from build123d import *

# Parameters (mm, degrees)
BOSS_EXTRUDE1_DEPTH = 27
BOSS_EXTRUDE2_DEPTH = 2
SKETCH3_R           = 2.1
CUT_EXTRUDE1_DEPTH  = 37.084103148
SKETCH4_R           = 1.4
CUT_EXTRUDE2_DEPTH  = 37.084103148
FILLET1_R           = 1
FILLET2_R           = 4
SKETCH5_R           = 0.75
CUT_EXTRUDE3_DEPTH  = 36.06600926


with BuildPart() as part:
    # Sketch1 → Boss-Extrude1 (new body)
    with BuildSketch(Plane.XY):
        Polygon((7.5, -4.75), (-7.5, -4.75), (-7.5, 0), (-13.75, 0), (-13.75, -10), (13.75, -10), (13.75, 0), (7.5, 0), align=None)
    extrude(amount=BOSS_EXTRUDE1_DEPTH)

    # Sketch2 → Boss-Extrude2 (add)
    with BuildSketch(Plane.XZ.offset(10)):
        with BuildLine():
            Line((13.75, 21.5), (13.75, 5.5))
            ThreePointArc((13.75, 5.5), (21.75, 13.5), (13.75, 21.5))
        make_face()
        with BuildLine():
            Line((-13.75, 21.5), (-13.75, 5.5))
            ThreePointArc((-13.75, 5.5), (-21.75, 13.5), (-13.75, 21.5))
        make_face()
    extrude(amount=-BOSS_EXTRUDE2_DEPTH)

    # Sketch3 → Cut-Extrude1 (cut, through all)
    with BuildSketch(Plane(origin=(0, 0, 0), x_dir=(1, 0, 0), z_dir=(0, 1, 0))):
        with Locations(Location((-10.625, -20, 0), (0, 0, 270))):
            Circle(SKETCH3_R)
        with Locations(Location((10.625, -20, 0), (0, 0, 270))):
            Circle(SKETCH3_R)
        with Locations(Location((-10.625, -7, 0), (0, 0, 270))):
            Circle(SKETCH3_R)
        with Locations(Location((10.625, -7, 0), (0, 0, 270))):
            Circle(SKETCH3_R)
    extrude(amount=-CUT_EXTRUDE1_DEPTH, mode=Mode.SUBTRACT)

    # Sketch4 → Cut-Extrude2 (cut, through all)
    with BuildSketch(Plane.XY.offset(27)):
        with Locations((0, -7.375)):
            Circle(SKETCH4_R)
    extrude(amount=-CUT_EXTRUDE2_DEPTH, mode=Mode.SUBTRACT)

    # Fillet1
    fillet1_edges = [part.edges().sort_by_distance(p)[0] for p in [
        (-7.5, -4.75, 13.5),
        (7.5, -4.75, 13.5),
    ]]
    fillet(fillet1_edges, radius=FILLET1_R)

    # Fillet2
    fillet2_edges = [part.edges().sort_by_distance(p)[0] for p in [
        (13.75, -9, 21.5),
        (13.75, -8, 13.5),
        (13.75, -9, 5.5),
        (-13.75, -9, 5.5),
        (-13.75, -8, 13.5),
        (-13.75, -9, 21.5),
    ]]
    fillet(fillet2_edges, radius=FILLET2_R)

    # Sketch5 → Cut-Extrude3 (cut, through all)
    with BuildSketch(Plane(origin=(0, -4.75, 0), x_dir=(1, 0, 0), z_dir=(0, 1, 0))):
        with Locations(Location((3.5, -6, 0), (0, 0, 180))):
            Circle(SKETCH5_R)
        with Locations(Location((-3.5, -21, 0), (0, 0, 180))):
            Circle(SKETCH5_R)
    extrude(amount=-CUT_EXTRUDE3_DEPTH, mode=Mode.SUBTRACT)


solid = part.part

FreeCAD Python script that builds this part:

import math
import FreeCAD as App
import Part
import Sketcher
from FreeCAD import Vector
Q = App.Units.Quantity


def edges_at(feature, points):
    """Names of the edges that pass closest to the given points."""
    edges = feature.Shape.Edges
    near = lambda p: min(range(len(edges)), key=lambda i: edges[i].distToShape(Part.Vertex(*p))[0])
    return sorted({f"Edge{near(p) + 1}" for p in points})

doc = App.newDocument("Part")
body = doc.addObject("PartDesign::Body", "Body")

# Sketch on XY plane
sketch1 = body.newObject("Sketcher::SketchObject", "Sketch")
sketch1.AttachmentSupport = (doc.getObject("XY_Plane"), [""])
sketch1.MapMode = "FlatFace"
sketch1.addGeometry([
    Part.LineSegment(Vector(7.5, -4.75, 0), Vector(-7.5, -4.75, 0)),  # 0
    Part.LineSegment(Vector(-7.5, -4.75, 0), Vector(-7.5, 0, 0)),  # 1
    Part.LineSegment(Vector(-7.5, 0, 0), Vector(-13.75, 0, 0)),  # 2
    Part.LineSegment(Vector(-13.75, 0, 0), Vector(-13.75, -10, 0)),  # 3
    Part.LineSegment(Vector(-13.75, -10, 0), Vector(13.75, -10, 0)),  # 4
    Part.LineSegment(Vector(13.75, -10, 0), Vector(13.75, 0, 0)),  # 5
    Part.LineSegment(Vector(13.75, 0, 0), Vector(7.5, 0, 0)),  # 6
    Part.LineSegment(Vector(7.5, 0, 0), Vector(7.5, -4.75, 0)),  # 7
], False)
sketch1.addConstraint([
    Sketcher.Constraint("Coincident", 0, 2, 1, 1),
    Sketcher.Constraint("Coincident", 1, 2, 2, 1),
    Sketcher.Constraint("Coincident", 2, 2, 3, 1),
    Sketcher.Constraint("Coincident", 3, 2, 4, 1),
    Sketcher.Constraint("Coincident", 4, 2, 5, 1),
    Sketcher.Constraint("Coincident", 5, 2, 6, 1),
    Sketcher.Constraint("Coincident", 6, 2, 7, 1),
    Sketcher.Constraint("Coincident", 7, 2, 0, 1),
    Sketcher.Constraint("Horizontal", 0),
    Sketcher.Constraint("Vertical", 1),
    Sketcher.Constraint("Horizontal", 2),
    Sketcher.Constraint("Vertical", 3),
    Sketcher.Constraint("Horizontal", 4),
    Sketcher.Constraint("Vertical", 5),
    Sketcher.Constraint("Horizontal", 6),
    Sketcher.Constraint("Vertical", 7),
    Sketcher.Constraint("Symmetric", 2, 2, 5, 2, -1, 1),
    Sketcher.Constraint("Symmetric", 1, 2, 6, 2, -2),
    Sketcher.Constraint("DistanceX", 0, 2, 0, 1, Q("15 mm")),
    Sketcher.Constraint("DistanceY", 3, 2, 3, 1, Q("10 mm")),
    Sketcher.Constraint("DistanceX", 4, 1, 4, 2, Q("27.5 mm")),
    Sketcher.Constraint("DistanceY", 1, 1, 1, 2, Q("4.75 mm")),
])
pad1 = body.newObject("PartDesign::Pad", "Pad")
pad1.Profile = sketch1
pad1.Length = 27

# Sketch on XZ plane
sketch2 = body.newObject("Sketcher::SketchObject", "Sketch001")
sketch2.AttachmentSupport = (doc.getObject("XZ_Plane"), [""])
sketch2.MapMode = "FlatFace"
sketch2.AttachmentOffset = App.Placement(Vector(0, 0, 10), App.Rotation())
sketch2.addGeometry([
    Part.LineSegment(Vector(13.75, 21.5, 0), Vector(13.75, 5.5, 0)),
    Part.ArcOfCircle(Part.Circle(Vector(13.75, 13.5, 0), Vector(0, 0, 1), 8), math.radians(-90), math.radians(90)),
    Part.LineSegment(Vector(-13.75, 5.5, 0), Vector(-13.75, 21.5, 0)),
    Part.ArcOfCircle(Part.Circle(Vector(-13.75, 13.5, 0), Vector(0, 0, 1), 8), math.radians(90), math.radians(270)),
], False)
sketch2.addConstraint([
    Sketcher.Constraint("Coincident", 0, 1, 1, 2),
    Sketcher.Constraint("Coincident", 1, 1, 0, 2),
    Sketcher.Constraint("Coincident", 2, 1, 3, 2),
    Sketcher.Constraint("Coincident", 3, 1, 2, 2),
    Sketcher.Constraint("Vertical", 0),
    Sketcher.Constraint("Vertical", 2),
    Sketcher.Constraint("Equal", 1, 3),
    Sketcher.Constraint("Symmetric", 1, 3, 3, 3, -2),
    Sketcher.Constraint("Vertical", 1, 3, 0, 1),
    Sketcher.Constraint("Vertical", 3, 3, 2, 1),
    Sketcher.Constraint("Radius", 1, Q("8 mm")),
    Sketcher.Constraint("DistanceY", -1, 1, 1, 3, Q("13.5 mm")),
    Sketcher.Constraint("DistanceX", 3, 3, 1, 3, Q("27.5 mm")),
])
pad2 = body.newObject("PartDesign::Pad", "Pad001")
pad2.Profile = sketch2
pad2.Length = 2
pad2.Reversed = True

# Sketch on XZ plane
sketch3 = body.newObject("Sketcher::SketchObject", "Sketch002")
sketch3.AttachmentSupport = (doc.getObject("XZ_Plane"), [""])
sketch3.MapMode = "FlatFace"
sketch3.addGeometry([
    Part.Circle(Vector(-10.625, 20, 0), Vector(0, 0, 1), 2.1),
    Part.Circle(Vector(10.625, 20, 0), Vector(0, 0, 1), 2.1),
    Part.Circle(Vector(-10.625, 7, 0), Vector(0, 0, 1), 2.1),
    Part.Circle(Vector(10.625, 7, 0), Vector(0, 0, 1), 2.1),
], False)
sketch3.addConstraint([
    Sketcher.Constraint("Equal", 0, 1),
    Sketcher.Constraint("Equal", 1, 2),
    Sketcher.Constraint("Equal", 2, 3),
    Sketcher.Constraint("Symmetric", 0, 3, 1, 3, -2),
    Sketcher.Constraint("Symmetric", 2, 3, 3, 3, -2),
    Sketcher.Constraint("Vertical", 0, 3, 2, 3),
    Sketcher.Constraint("Diameter", 0, Q("4.2 mm")),
    Sketcher.Constraint("DistanceY", -1, 1, 0, 3, Q("20 mm")),
    Sketcher.Constraint("DistanceY", -1, 1, 2, 3, Q("7 mm")),
    Sketcher.Constraint("DistanceX", 0, 3, 1, 3, Q("21.25 mm")),
])
pocket1 = body.newObject("PartDesign::Pocket", "Pocket")
pocket1.Profile = sketch3
pocket1.Type = "ThroughAll"
pocket1.Reversed = True

# Sketch on XY plane
sketch4 = body.newObject("Sketcher::SketchObject", "Sketch003")
sketch4.AttachmentSupport = (doc.getObject("XY_Plane"), [""])
sketch4.MapMode = "FlatFace"
sketch4.AttachmentOffset = App.Placement(Vector(0, 0, 27), App.Rotation())
sketch4.addGeometry(Part.Circle(Vector(0, -7.375, 0), Vector(0, 0, 1), 1.4), False)
sketch4.addConstraint([
    Sketcher.Constraint("PointOnObject", 0, 3, -2),
    Sketcher.Constraint("Diameter", 0, Q("2.8 mm")),
    Sketcher.Constraint("DistanceY", 0, 3, -1, 1, Q("7.375 mm")),
])
pocket2 = body.newObject("PartDesign::Pocket", "Pocket001")
pocket2.Profile = sketch4
pocket2.Type = "ThroughAll"
doc.recompute()

fillet = body.newObject("PartDesign::Fillet", "Fillet")
fillet.Base = (pocket2, edges_at(pocket2, [(-7.5, -4.75, 13.5), (7.5, -4.75, 13.5)]))
fillet.Radius = 1
doc.recompute()

fillet2 = body.newObject("PartDesign::Fillet", "Fillet001")
fillet2.Base = (fillet, edges_at(fillet, [
    (13.75, -9, 21.5),
    (13.75, -8, 13.5),
    (13.75, -9, 5.5),
    (-13.75, -9, 5.5),
    (-13.75, -8, 13.5),
    (-13.75, -9, 21.5),
]))
fillet2.Radius = 4

# Sketch on XZ plane
sketch5 = body.newObject("Sketcher::SketchObject", "Sketch004")
sketch5.AttachmentSupport = (doc.getObject("XZ_Plane"), [""])
sketch5.MapMode = "FlatFace"
sketch5.AttachmentOffset = App.Placement(Vector(0, 0, 4.75), App.Rotation())
sketch5.addGeometry([
    Part.Circle(Vector(3.5, 6, 0), Vector(0, 0, 1), 0.75),
    Part.Circle(Vector(-3.5, 21, 0), Vector(0, 0, 1), 0.75),
], False)
sketch5.addConstraint([
    Sketcher.Constraint("Equal", 0, 1),
    Sketcher.Constraint("Diameter", 0, Q("1.5 mm")),
    Sketcher.Constraint("DistanceY", -1, 1, 0, 3, Q("6 mm")),
    Sketcher.Constraint("DistanceY", -1, 1, 1, 3, Q("21 mm")),
    Sketcher.Constraint("DistanceX", 1, 3, 0, 3, Q("7 mm")),
    Sketcher.Constraint("DistanceX", -1, 1, 0, 3, Q("3.5 mm")),
])
pocket3 = body.newObject("PartDesign::Pocket", "Pocket002")
pocket3.Profile = sketch5
pocket3.Type = "ThroughAll"
pocket3.Reversed = True

doc.recompute()
